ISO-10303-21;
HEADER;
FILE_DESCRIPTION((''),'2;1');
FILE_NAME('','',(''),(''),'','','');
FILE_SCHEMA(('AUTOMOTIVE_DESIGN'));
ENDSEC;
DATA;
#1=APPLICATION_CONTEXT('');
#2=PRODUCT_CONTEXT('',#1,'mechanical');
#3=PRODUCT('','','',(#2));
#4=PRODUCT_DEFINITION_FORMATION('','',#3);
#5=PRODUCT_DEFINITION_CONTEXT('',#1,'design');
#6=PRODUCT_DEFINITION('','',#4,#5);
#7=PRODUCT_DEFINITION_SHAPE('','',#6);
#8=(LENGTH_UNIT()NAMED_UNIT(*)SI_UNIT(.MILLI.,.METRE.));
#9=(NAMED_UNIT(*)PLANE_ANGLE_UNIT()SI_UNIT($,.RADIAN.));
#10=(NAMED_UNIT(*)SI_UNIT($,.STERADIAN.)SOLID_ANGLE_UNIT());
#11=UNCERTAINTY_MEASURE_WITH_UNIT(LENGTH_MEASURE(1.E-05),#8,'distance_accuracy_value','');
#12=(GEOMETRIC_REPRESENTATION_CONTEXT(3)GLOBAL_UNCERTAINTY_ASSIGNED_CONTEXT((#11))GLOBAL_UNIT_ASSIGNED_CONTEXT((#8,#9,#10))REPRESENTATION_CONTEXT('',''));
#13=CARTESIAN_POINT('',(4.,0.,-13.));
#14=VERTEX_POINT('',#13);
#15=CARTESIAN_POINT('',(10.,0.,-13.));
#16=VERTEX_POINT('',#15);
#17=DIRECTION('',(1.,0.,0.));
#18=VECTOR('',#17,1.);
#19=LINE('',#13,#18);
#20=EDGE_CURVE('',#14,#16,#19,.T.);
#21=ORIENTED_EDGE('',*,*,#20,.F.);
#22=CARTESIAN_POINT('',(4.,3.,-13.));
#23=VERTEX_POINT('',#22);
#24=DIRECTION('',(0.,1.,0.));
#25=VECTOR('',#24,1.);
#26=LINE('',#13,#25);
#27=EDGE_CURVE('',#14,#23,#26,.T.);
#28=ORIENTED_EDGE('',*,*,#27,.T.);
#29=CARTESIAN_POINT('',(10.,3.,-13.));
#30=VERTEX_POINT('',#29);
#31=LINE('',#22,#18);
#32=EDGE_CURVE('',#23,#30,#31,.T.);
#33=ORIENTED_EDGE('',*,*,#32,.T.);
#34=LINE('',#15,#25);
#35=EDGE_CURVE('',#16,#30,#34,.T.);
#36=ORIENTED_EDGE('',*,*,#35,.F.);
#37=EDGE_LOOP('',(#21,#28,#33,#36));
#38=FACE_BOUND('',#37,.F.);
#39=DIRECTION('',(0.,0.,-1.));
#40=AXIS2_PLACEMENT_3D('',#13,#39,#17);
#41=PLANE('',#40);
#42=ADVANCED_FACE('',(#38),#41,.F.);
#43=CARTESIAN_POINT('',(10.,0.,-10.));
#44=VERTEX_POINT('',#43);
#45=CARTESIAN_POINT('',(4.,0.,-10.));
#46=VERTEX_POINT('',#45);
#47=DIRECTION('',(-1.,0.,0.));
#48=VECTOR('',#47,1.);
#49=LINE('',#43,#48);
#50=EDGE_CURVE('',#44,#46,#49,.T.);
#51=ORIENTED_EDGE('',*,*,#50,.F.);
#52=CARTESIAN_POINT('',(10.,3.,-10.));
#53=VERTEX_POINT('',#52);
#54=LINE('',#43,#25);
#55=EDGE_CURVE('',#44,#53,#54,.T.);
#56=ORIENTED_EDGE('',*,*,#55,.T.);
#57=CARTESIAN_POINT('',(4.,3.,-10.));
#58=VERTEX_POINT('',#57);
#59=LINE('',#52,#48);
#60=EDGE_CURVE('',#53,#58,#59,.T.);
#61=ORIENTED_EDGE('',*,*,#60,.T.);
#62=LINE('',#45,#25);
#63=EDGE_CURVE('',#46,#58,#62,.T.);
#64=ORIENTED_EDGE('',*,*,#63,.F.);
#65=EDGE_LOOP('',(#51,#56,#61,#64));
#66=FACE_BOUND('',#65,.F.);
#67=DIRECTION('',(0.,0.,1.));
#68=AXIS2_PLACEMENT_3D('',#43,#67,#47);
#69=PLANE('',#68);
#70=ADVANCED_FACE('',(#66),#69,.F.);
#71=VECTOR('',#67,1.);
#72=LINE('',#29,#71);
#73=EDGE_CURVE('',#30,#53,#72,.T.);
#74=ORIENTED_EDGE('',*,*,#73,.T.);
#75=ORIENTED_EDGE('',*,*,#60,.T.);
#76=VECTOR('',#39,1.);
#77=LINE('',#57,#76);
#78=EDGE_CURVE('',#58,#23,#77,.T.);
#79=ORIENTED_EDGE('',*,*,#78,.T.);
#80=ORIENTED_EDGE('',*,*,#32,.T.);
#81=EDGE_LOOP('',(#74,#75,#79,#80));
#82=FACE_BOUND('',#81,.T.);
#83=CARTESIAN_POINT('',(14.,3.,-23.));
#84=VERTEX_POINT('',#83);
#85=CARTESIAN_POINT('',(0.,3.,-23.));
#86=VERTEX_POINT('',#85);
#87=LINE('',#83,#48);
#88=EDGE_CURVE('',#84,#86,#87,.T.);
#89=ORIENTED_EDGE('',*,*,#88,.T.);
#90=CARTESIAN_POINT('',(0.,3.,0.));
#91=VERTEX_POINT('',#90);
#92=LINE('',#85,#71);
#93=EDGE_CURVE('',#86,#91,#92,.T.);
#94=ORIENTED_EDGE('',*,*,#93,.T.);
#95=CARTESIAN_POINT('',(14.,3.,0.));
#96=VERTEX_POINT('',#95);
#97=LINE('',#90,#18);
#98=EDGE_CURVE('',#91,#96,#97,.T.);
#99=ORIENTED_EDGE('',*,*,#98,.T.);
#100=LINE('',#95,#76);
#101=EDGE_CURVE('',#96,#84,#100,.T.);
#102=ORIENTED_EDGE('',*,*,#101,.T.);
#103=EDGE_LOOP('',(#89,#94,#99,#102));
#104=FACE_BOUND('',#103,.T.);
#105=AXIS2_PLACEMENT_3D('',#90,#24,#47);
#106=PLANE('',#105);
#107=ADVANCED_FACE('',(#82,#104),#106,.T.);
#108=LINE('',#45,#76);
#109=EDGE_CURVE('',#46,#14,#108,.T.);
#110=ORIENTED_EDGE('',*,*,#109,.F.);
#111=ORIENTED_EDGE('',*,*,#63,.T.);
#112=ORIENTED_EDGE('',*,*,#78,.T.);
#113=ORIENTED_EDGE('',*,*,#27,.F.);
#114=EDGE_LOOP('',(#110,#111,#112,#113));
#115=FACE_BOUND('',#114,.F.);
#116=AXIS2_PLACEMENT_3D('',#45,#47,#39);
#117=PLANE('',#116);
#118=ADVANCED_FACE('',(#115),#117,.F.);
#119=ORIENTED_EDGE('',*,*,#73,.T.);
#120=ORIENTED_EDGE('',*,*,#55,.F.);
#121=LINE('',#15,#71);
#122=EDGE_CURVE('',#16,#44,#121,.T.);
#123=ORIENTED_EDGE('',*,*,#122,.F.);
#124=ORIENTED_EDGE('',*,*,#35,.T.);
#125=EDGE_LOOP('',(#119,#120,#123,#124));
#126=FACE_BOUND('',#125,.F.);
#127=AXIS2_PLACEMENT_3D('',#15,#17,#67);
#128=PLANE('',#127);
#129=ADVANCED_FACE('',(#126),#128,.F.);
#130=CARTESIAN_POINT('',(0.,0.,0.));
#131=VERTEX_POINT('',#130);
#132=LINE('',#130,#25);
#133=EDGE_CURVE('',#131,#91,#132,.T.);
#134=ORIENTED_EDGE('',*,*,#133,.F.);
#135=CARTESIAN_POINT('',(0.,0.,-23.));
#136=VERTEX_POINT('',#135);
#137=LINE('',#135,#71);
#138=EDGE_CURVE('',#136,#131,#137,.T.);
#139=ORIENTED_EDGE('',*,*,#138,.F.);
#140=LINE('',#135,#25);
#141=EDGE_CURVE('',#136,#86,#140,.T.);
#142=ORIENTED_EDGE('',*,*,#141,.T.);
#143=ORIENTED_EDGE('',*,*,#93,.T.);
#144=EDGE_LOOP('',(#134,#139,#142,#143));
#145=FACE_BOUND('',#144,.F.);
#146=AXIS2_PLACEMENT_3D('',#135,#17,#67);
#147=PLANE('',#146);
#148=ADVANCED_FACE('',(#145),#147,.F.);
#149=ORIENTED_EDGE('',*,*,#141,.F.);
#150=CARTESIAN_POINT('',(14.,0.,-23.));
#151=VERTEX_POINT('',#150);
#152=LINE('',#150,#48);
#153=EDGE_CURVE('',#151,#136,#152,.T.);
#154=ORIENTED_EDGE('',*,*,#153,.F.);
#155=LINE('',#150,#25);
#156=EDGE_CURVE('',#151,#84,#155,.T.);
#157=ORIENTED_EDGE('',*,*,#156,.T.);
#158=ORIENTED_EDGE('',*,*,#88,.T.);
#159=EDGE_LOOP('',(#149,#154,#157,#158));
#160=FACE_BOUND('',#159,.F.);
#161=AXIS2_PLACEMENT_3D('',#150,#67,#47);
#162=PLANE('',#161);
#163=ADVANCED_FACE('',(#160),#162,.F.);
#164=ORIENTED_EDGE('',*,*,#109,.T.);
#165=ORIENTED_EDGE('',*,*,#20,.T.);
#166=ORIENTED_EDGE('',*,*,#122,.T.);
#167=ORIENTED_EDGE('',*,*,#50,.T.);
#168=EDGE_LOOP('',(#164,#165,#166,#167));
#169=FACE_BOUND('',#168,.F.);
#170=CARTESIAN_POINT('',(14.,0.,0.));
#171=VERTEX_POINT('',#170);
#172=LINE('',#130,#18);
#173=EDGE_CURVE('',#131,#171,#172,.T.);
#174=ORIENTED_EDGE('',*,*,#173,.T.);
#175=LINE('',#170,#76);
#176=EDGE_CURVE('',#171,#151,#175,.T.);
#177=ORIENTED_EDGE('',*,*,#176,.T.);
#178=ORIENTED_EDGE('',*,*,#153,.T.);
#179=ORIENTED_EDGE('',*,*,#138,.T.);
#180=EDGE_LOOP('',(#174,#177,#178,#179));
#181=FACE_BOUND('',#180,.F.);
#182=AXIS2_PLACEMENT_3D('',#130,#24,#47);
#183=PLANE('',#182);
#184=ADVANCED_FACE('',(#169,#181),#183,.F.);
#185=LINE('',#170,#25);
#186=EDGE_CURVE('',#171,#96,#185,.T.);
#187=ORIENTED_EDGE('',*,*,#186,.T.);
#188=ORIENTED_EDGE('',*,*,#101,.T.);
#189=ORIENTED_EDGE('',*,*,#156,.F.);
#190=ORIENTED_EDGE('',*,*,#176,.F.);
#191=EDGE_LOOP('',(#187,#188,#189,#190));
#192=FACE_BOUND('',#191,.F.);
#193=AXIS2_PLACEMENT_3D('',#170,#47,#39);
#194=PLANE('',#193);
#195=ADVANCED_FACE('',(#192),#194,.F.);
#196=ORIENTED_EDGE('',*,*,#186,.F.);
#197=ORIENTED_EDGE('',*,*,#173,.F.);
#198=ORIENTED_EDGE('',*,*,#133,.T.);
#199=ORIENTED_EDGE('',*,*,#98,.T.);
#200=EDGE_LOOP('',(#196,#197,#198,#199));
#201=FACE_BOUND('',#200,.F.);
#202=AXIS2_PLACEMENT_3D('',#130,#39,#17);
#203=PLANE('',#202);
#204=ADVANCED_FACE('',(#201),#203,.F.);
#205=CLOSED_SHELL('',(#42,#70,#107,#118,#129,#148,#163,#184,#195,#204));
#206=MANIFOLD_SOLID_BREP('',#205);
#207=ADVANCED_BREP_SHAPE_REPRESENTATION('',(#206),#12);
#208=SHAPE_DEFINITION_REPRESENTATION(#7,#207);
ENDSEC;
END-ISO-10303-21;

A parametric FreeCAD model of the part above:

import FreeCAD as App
import Part
import Sketcher
from FreeCAD import Vector


def add_polygon(sketch, points):
    """Adds a closed chain of lines whose ends are joined by coincident constraints."""
    first, n = sketch.GeometryCount, len(points)
    for a, b in zip(points, points[1:] + points[:1]):
        sketch.addGeometry(Part.LineSegment(App.Vector(*a, 0), App.Vector(*b, 0)), False)
    for i in range(n):
        sketch.addConstraint(Sketcher.Constraint("Coincident", first + i, 2, first + (i + 1) % n, 1))

doc = App.newDocument("Part")
body = doc.addObject("PartDesign::Body", "Body")

sketch1 = body.newObject("Sketcher::SketchObject", "Sketch")
sketch1.AttachmentSupport = (doc.getObject("XZ_Plane"), [""])
sketch1.MapMode = "FlatFace"
add_polygon(sketch1, [(0, -23), (0, 0), (14, 0), (14, -23)])
add_polygon(sketch1, [(4, -10), (4, -13), (10, -13), (10, -10)])
sketch1.addConstraint(Sketcher.Constraint("Vertical", 0))
sketch1.addConstraint(Sketcher.Constraint("Horizontal", 1))
sketch1.addConstraint(Sketcher.Constraint("Vertical", 2))
sketch1.addConstraint(Sketcher.Constraint("Horizontal", 3))
sketch1.addConstraint(Sketcher.Constraint("Vertical", 4))
sketch1.addConstraint(Sketcher.Constraint("Horizontal", 5))
sketch1.addConstraint(Sketcher.Constraint("Vertical", 6))
sketch1.addConstraint(Sketcher.Constraint("Horizontal", 7))
sketch1.addConstraint(Sketcher.Constraint("Coincident", 0, 2, -1, 1))
sketch1.addConstraint(Sketcher.Constraint("DistanceX", 1, 1, 1, 2, 14.0))
sketch1.addConstraint(Sketcher.Constraint("DistanceX", 5, 1, 5, 2, 6.0))
sketch1.addConstraint(Sketcher.Constraint("DistanceY", 0, 1, 0, 2, 23.0))
sketch1.addConstraint(Sketcher.Constraint("DistanceY", 4, 2, 4, 1, 3.0))
sketch1.addConstraint(Sketcher.Constraint("DistanceX", -1, 1, 4, 2, 4.0))
sketch1.addConstraint(Sketcher.Constraint("DistanceY", 6, 2, -1, 1, 10.0))
pad1 = body.newObject("PartDesign::Pad", "Pad")
pad1.Profile = sketch1
pad1.Length = 3
pad1.Reversed = True

doc.recompute()
